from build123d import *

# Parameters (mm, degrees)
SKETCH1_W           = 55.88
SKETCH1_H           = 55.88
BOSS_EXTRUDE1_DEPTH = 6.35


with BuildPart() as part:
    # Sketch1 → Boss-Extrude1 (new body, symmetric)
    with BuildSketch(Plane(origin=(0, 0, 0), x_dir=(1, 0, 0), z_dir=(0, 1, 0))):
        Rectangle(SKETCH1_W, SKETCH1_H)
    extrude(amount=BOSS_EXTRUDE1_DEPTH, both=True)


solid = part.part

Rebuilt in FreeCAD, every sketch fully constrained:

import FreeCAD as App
import Part
import Sketcher
Q = App.Units.Quantity

doc = App.newDocument("Part")
body = doc.addObject("PartDesign::Body", "Body")

# Sketch on XZ plane
sketch1 = doc.addObject("Sketcher::SketchObject", "Sketch")
body.addObject(sketch1)
sketch1.AttachmentSupport = (doc.XZ_Plane, [""])
sketch1.MapMode = "FlatFace"
sketch1.addGeometry([
    Part.LineSegment(App.Vector(-27.94, -27.94, 0), App.Vector(-27.94, 27.94, 0)),
    Part.LineSegment(App.Vector(-27.94, 27.94, 0), App.Vector(27.94, 27.94, 0)),
    Part.LineSegment(App.Vector(27.94, 27.94, 0), App.Vector(27.94, -27.94, 0)),
    Part.LineSegment(App.Vector(27.94, -27.94, 0), App.Vector(-27.94, -27.94, 0)),
], False)
sketch1.addConstraint([
    Sketcher.Constraint("Coincident", 0, 2, 1, 1),
    Sketcher.Constraint("Coincident", 1, 2, 2, 1),
    Sketcher.Constraint("Coincident", 2, 2, 3, 1),
    Sketcher.Constraint("Coincident", 3, 2, 0, 1),
    Sketcher.Constraint("Vertical", 0),
    Sketcher.Constraint("Horizontal", 1),
    Sketcher.Constraint("Vertical", 2),
    Sketcher.Constraint("Horizontal", 3),
    Sketcher.Constraint("Symmetric", 0, 2, 2, 2, -1, 1),
    Sketcher.Constraint("Equal", 3, 0),
    Sketcher.Constraint("DistanceX", 1, 1, 1, 2, Q("2.2 in")),
])
pad1 = doc.addObject("PartDesign::Pad", "Pad")
body.addObject(pad1)
pad1.Profile = sketch1
pad1.Length = Q("0.5 in")
pad1.Midplane = True

doc.recompute()
